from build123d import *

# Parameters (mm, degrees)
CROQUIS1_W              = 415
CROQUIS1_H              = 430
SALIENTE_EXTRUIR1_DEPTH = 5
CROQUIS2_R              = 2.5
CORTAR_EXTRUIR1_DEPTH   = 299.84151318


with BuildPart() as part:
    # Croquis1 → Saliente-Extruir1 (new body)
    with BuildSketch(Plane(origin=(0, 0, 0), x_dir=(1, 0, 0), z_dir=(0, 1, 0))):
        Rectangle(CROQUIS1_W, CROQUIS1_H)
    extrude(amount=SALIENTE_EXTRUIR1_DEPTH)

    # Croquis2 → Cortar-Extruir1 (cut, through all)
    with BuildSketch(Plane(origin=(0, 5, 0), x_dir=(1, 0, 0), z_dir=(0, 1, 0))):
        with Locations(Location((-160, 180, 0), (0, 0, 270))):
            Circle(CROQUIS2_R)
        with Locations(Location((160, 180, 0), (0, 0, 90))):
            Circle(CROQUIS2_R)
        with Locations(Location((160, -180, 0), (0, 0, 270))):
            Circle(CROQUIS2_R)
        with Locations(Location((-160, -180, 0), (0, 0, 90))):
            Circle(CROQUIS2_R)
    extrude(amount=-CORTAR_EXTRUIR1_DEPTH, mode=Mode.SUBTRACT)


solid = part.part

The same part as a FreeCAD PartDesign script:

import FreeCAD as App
import Part
import Sketcher

V = App.Vector
Q = App.Units.Quantity

doc = App.newDocument("Part")
body = doc.addObject("PartDesign::Body", "Body")

sketch1 = body.newObject("Sketcher::SketchObject", "Sketch")
sketch1.AttachmentSupport = (doc.getObject("XZ_Plane"), [""])
sketch1.MapMode = "FlatFace"
sketch1.addGeometry(Part.LineSegment(V(-208, -215, 0), V(-208, 215, 0)), False)
sketch1.addGeometry(Part.LineSegment(V(-208, 215, 0), V(208, 215, 0)), False)
sketch1.addGeometry(Part.LineSegment(V(208, 215, 0), V(208, -215, 0)), False)
sketch1.addGeometry(Part.LineSegment(V(208, -215, 0), V(-208, -215, 0)), False)
sketch1.addConstraint(Sketcher.Constraint("Coincident", 0, 2, 1, 1))
sketch1.addConstraint(Sketcher.Constraint("Coincident", 1, 2, 2, 1))
sketch1.addConstraint(Sketcher.Constraint("Coincident", 2, 2, 3, 1))
sketch1.addConstraint(Sketcher.Constraint("Coincident", 3, 2, 0, 1))
sketch1.addConstraint(Sketcher.Constraint("Vertical", 0))
sketch1.addConstraint(Sketcher.Constraint("Horizontal", 1))
sketch1.addConstraint(Sketcher.Constraint("Vertical", 2))
sketch1.addConstraint(Sketcher.Constraint("Horizontal", 3))
sketch1.addConstraint(Sketcher.Constraint("Symmetric", 0, 2, 2, 2, -1, 1))
sketch1.addConstraint(Sketcher.Constraint("DistanceX", 1, 1, 1, 2, Q("415 mm")))
sketch1.addConstraint(Sketcher.Constraint("DistanceY", 0, 1, 0, 2, Q("430 mm")))
pad1 = body.newObject("PartDesign::Pad", "Pad")
pad1.Profile = sketch1
pad1.Length = 5
pad1.Reversed = True

sketch2 = body.newObject("Sketcher::SketchObject", "Sketch001")
sketch2.AttachmentSupport = (doc.getObject("XZ_Plane"), [""])
sketch2.MapMode = "FlatFace"
sketch2.AttachmentOffset = App.Placement(V(0, 0, -5), App.Rotation())
sketch2.addGeometry(Part.Circle(V(-160, -180, 0), V(0, 0, 1), 2.5), False)
sketch2.addGeometry(Part.Circle(V(160, -180, 0), V(0, 0, 1), 2.5), False)
sketch2.addGeometry(Part.Circle(V(160, 180, 0), V(0, 0, 1), 2.5), False)
sketch2.addGeometry(Part.Circle(V(-160, 180, 0), V(0, 0, 1), 2.5), False)
sketch2.addConstraint(Sketcher.Constraint("Equal", 0, 1))
sketch2.addConstraint(Sketcher.Constraint("Equal", 1, 2))
sketch2.addConstraint(Sketcher.Constraint("Equal", 2, 3))
sketch2.addConstraint(Sketcher.Constraint("Symmetric", 0, 3, 2, 3, -1, 1))
sketch2.addConstraint(Sketcher.Constraint("Symmetric", 1, 3, 3, 3, -1, 1))
sketch2.addConstraint(Sketcher.Constraint("Symmetric", 0, 3, 1, 3, -2))
sketch2.addConstraint(Sketcher.Constraint("Diameter", 0, Q("5 mm")))
sketch2.addConstraint(Sketcher.Constraint("DistanceX", 0, 3, -1, 1, Q("160 mm")))
sketch2.addConstraint(Sketcher.Constraint("DistanceY", 0, 3, -1, 1, Q("180 mm")))
pocket1 = body.newObject("PartDesign::Pocket", "Pocket")
pocket1.Profile = sketch2
pocket1.Type = "ThroughAll"
pocket1.Reversed = True

doc.recompute()
